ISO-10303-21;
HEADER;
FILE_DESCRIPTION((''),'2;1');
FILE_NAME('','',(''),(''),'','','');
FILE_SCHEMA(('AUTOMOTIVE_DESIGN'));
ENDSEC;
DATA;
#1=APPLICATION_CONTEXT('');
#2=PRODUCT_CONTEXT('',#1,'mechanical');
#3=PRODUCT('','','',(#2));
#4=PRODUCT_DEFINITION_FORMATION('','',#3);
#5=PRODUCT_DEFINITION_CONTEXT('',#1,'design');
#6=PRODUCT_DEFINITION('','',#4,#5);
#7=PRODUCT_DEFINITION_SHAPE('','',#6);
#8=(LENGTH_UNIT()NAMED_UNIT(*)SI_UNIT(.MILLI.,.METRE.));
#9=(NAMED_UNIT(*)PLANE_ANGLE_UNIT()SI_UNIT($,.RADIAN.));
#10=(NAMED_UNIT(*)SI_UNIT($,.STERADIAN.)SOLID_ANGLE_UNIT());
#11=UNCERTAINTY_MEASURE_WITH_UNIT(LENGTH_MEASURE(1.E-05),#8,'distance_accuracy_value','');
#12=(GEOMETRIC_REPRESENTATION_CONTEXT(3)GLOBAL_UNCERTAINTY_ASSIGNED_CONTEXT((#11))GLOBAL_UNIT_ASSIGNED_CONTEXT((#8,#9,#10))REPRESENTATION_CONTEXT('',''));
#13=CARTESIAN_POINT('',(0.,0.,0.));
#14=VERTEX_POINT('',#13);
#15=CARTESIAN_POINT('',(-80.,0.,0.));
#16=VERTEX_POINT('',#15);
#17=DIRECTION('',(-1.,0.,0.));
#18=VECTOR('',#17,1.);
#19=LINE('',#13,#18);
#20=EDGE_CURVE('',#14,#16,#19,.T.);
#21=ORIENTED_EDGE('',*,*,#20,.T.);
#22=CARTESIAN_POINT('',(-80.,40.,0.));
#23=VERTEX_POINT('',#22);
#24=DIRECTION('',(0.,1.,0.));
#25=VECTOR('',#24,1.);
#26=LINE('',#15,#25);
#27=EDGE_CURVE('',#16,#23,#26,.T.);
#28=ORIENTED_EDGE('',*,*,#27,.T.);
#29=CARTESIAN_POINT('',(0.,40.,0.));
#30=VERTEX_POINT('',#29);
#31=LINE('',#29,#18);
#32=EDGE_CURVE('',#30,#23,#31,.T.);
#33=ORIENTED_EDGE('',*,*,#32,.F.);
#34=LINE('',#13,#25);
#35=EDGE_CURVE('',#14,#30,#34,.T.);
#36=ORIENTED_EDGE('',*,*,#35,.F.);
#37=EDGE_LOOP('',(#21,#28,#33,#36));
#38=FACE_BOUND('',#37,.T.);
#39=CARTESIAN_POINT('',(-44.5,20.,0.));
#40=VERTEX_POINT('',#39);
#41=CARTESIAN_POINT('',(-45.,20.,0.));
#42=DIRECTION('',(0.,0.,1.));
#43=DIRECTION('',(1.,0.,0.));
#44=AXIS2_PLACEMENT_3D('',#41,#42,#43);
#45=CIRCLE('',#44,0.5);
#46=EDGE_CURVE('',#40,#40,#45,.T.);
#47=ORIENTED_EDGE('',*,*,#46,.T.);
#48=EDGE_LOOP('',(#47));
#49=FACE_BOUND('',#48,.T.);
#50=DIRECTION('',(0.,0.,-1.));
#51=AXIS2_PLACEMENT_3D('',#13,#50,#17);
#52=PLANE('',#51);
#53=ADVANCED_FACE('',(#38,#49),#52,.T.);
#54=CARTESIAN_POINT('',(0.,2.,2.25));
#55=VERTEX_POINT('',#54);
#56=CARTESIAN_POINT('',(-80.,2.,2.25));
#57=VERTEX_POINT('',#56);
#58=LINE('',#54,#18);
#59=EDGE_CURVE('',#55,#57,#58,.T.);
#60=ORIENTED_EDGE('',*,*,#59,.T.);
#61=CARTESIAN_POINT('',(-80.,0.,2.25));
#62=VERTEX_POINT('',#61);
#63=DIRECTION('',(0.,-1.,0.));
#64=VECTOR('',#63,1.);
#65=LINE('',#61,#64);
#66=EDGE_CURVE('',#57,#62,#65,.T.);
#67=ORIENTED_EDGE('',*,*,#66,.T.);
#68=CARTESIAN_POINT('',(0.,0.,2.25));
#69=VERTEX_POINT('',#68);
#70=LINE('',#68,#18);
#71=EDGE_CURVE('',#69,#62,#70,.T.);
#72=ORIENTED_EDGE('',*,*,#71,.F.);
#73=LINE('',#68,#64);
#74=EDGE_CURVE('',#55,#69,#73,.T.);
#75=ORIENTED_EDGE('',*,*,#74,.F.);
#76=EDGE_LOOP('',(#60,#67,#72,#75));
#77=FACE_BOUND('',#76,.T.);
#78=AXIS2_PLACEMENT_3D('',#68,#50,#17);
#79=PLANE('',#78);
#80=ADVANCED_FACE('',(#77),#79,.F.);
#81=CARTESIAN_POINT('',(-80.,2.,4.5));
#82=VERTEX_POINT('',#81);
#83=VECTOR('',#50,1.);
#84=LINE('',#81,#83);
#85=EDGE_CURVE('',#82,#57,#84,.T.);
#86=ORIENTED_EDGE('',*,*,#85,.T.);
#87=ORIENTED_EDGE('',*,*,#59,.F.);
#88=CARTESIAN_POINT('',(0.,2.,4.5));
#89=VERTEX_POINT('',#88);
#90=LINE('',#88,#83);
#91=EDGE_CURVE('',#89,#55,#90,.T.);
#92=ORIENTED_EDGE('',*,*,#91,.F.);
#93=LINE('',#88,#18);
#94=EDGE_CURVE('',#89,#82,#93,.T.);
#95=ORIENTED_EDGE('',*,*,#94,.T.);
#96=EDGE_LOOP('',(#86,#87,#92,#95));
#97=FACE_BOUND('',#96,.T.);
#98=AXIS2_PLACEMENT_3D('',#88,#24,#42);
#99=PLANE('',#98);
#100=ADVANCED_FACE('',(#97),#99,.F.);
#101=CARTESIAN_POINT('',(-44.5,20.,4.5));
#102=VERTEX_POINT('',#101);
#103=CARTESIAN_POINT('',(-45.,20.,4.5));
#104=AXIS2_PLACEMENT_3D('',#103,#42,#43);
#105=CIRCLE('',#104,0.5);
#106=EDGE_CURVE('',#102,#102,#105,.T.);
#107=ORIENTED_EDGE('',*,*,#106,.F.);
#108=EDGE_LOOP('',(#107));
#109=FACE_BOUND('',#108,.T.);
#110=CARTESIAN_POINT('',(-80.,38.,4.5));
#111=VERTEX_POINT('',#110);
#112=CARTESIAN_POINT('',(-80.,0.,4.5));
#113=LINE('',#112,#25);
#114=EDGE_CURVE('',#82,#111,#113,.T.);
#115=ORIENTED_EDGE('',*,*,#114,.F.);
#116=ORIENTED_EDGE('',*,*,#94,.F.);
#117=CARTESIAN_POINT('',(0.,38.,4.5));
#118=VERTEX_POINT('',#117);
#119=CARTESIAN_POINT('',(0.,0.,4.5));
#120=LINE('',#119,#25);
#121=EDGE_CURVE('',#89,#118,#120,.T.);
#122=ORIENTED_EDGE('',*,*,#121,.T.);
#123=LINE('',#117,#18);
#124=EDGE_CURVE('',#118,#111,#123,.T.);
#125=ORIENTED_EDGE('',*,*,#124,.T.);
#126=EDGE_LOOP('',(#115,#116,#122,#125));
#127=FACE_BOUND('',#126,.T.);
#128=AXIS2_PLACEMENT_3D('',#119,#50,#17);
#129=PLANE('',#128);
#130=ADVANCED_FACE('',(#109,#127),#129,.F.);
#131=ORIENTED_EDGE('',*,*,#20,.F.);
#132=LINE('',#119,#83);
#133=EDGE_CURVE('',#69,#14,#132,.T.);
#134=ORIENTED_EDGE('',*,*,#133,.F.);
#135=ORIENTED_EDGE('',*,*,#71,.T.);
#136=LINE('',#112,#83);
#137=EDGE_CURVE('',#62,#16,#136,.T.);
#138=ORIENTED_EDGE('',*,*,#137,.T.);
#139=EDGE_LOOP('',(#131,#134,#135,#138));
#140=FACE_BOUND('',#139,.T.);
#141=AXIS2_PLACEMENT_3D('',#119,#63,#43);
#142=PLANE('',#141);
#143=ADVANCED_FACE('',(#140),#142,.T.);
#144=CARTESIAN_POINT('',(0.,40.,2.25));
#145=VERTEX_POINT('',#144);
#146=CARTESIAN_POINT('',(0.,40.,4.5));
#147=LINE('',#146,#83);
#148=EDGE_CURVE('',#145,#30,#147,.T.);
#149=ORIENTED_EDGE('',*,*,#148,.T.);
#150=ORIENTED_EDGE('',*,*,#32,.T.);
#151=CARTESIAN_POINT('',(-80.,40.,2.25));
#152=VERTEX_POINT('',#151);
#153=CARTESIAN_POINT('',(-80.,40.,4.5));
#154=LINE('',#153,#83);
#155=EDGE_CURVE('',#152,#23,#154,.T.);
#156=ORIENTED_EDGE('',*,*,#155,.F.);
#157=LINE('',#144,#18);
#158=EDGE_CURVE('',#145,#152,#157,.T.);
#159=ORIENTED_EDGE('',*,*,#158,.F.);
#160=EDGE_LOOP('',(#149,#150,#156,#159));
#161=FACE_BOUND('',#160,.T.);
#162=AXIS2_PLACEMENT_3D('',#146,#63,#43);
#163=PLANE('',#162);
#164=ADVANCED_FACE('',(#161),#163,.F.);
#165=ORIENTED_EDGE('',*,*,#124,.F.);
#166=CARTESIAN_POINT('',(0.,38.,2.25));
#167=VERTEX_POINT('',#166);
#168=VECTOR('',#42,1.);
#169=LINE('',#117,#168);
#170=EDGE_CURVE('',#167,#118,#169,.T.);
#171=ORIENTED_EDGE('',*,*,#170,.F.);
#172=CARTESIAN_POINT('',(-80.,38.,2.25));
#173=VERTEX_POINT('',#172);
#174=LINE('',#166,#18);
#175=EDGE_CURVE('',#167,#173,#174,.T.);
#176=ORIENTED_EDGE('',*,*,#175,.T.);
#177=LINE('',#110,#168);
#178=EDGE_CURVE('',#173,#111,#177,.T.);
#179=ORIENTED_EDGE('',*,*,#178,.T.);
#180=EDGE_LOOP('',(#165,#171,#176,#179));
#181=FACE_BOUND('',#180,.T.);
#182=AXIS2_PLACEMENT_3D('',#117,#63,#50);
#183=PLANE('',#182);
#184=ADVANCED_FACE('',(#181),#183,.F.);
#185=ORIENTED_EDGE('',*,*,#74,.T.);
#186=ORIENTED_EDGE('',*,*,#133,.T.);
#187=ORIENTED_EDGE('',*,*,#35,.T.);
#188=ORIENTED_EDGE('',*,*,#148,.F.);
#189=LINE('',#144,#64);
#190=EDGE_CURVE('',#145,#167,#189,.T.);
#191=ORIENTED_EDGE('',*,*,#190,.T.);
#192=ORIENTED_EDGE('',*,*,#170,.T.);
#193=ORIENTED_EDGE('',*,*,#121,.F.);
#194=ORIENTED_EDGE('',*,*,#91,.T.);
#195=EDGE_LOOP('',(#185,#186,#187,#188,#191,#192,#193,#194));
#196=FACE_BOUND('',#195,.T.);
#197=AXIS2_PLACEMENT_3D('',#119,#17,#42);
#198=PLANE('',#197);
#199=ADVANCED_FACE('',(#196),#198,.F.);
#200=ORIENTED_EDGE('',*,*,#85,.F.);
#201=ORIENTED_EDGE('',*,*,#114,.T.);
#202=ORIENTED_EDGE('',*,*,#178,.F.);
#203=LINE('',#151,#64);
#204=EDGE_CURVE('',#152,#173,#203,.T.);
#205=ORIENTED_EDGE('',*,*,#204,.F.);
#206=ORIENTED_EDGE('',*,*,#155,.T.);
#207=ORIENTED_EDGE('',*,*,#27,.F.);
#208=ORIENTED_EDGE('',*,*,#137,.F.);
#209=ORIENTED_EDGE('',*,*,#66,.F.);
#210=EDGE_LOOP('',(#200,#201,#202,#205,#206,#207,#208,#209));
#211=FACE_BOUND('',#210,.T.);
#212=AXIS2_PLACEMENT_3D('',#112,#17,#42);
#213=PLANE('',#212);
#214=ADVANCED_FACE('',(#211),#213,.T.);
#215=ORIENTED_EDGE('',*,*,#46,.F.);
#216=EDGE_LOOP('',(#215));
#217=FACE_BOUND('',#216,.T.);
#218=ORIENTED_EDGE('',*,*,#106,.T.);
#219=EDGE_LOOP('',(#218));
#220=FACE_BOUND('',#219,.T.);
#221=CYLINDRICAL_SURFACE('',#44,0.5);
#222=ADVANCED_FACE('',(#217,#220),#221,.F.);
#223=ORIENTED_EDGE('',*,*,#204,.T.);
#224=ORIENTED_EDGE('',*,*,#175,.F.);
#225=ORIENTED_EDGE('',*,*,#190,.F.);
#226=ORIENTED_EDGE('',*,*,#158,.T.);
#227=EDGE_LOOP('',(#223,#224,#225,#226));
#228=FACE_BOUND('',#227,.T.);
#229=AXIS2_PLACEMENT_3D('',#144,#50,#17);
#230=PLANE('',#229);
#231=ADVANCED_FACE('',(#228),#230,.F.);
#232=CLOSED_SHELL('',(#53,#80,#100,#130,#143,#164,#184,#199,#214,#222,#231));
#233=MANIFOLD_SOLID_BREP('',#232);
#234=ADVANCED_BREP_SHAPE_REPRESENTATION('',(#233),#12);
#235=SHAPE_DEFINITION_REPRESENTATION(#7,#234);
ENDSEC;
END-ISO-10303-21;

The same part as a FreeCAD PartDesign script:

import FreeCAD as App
import Part
import Sketcher
Q = App.Units.Quantity

doc = App.newDocument("Part")
params = doc.addObject("Spreadsheet::Sheet", "Params")
for row, (alias, value) in enumerate([
    ("sketch1_width", "80 mm"),
    ("sketch1_height", "40 mm"),
    ("pad1_length", "4.5 mm"),
    ("sketch2_diameter", "1 mm"),
    ("sketch3_width", "2 mm"),
    ("sketch3_height", "2.25 mm"),
], start=1):
    params.set(f"A{row}", alias)
    params.set(f"B{row}", "=" + value)
    params.setAlias(f"B{row}", alias)

body = doc.addObject("PartDesign::Body", "Body")

# Sketch on XY plane
sketch1 = body.newObject("Sketcher::SketchObject", "Sketch")
sketch1.AttachmentSupport = (doc.getObject("XY_Plane"), [""])
sketch1.MapMode = "FlatFace"
sketch1.addGeometry(Part.LineSegment(App.Vector(-80, 0, 0), App.Vector(0, 0, 0)), False)
sketch1.addGeometry(Part.LineSegment(App.Vector(0, 0, 0), App.Vector(0, 40, 0)), False)
sketch1.addGeometry(Part.LineSegment(App.Vector(0, 40, 0), App.Vector(-80, 40, 0)), False)
sketch1.addGeometry(Part.LineSegment(App.Vector(-80, 40, 0), App.Vector(-80, 0, 0)), False)
sketch1.addConstraint(Sketcher.Constraint("Coincident", 0, 2, 1, 1))
sketch1.addConstraint(Sketcher.Constraint("Coincident", 1, 2, 2, 1))
sketch1.addConstraint(Sketcher.Constraint("Coincident", 2, 2, 3, 1))
sketch1.addConstraint(Sketcher.Constraint("Coincident", 3, 2, 0, 1))
sketch1.addConstraint(Sketcher.Constraint("Horizontal", 0))
sketch1.addConstraint(Sketcher.Constraint("Vertical", 1))
sketch1.addConstraint(Sketcher.Constraint("Horizontal", 2))
sketch1.addConstraint(Sketcher.Constraint("Vertical", 3))
sketch1.addConstraint(Sketcher.Constraint("Coincident", 0, 2, -1, 1))
sketch1.addConstraint(Sketcher.Constraint("DistanceX", 0, 1, 0, 2, Q("80 mm")))
sketch1.addConstraint(Sketcher.Constraint("DistanceY", 1, 1, 1, 2, Q("40 mm")))
sketch1.setExpression("Constraints[9]", "Params.sketch1_width")
sketch1.setExpression("Constraints[10]", "Params.sketch1_height")
pad1 = body.newObject("PartDesign::Pad", "Pad")
pad1.Profile = sketch1
pad1.setExpression("Length", "Params.pad1_length")

# Sketch on XY plane
sketch2 = body.newObject("Sketcher::SketchObject", "Sketch001")
sketch2.AttachmentSupport = (doc.getObject("XY_Plane"), [""])
sketch2.MapMode = "FlatFace"
sketch2.AttachmentOffset = App.Placement(App.Vector(0, 0, 4.5), App.Rotation())
sketch2.addGeometry(Part.Circle(App.Vector(-45, 20, 0), App.Vector(0, 0, 1), 0.5), False)
sketch2.addConstraint(Sketcher.Constraint("Diameter", 0, Q("1 mm")))
sketch2.addConstraint(Sketcher.Constraint("DistanceX", 0, 3, -1, 1, Q("45 mm")))
sketch2.addConstraint(Sketcher.Constraint("DistanceY", -1, 1, 0, 3, Q("20 mm")))
sketch2.setExpression("Constraints[0]", "Params.sketch2_diameter")
pocket1 = body.newObject("PartDesign::Pocket", "Pocket")
pocket1.Profile = sketch2
pocket1.Type = "ThroughAll"

# Sketch on YZ plane
sketch3 = body.newObject("Sketcher::SketchObject", "Sketch002")
sketch3.AttachmentSupport = (doc.getObject("YZ_Plane"), [""])
sketch3.MapMode = "FlatFace"
sketch3.AttachmentOffset = App.Placement(App.Vector(0, 0, -80), App.Rotation())
sketch3.addGeometry(Part.LineSegment(App.Vector(40, 4.5, 0), App.Vector(40, 2.2, 0)), False)
sketch3.addGeometry(Part.LineSegment(App.Vector(40, 2.2, 0), App.Vector(38, 2.2, 0)), False)
sketch3.addGeometry(Part.LineSegment(App.Vector(38, 2.2, 0), App.Vector(38, 4.5, 0)), False)
sketch3.addGeometry(Part.LineSegment(App.Vector(38, 4.5, 0), App.Vector(40, 4.5, 0)), False)
sketch3.addGeometry(Part.LineSegment(App.Vector(2, 4.5, 0), App.Vector(2, 2.2, 0)), False)
sketch3.addGeometry(Part.LineSegment(App.Vector(2, 2.2, 0), App.Vector(0, 2.2, 0)), False)
sketch3.addGeometry(Part.LineSegment(App.Vector(0, 2.2, 0), App.Vector(0, 4.5, 0)), False)
sketch3.addGeometry(Part.LineSegment(App.Vector(0, 4.5, 0), App.Vector(2, 4.5, 0)), False)
sketch3.addConstraint(Sketcher.Constraint("Coincident", 0, 2, 1, 1))
sketch3.addConstraint(Sketcher.Constraint("Coincident", 1, 2, 2, 1))
sketch3.addConstraint(Sketcher.Constraint("Coincident", 2, 2, 3, 1))
sketch3.addConstraint(Sketcher.Constraint("Coincident", 3, 2, 0, 1))
sketch3.addConstraint(Sketcher.Constraint("Coincident", 4, 2, 5, 1))
sketch3.addConstraint(Sketcher.Constraint("Coincident", 5, 2, 6, 1))
sketch3.addConstraint(Sketcher.Constraint("Coincident", 6, 2, 7, 1))
sketch3.addConstraint(Sketcher.Constraint("Coincident", 7, 2, 4, 1))
sketch3.addConstraint(Sketcher.Constraint("Vertical", 0))
sketch3.addConstraint(Sketcher.Constraint("Horizontal", 1))
sketch3.addConstraint(Sketcher.Constraint("Vertical", 2))
sketch3.addConstraint(Sketcher.Constraint("Horizontal", 3))
sketch3.addConstraint(Sketcher.Constraint("Vertical", 4))
sketch3.addConstraint(Sketcher.Constraint("Horizontal", 5))
sketch3.addConstraint(Sketcher.Constraint("Vertical", 6))
sketch3.addConstraint(Sketcher.Constraint("Horizontal", 7))
sketch3.addConstraint(Sketcher.Constraint("PointOnObject", 5, 2, -2))
sketch3.addConstraint(Sketcher.Constraint("Horizontal", 1, 2, 4, 2))
sketch3.addConstraint(Sketcher.Constraint("Horizontal", 3, 2, 6, 2))
sketch3.addConstraint(Sketcher.Constraint("Equal", 3, 5))
sketch3.addConstraint(Sketcher.Constraint("DistanceX", 1, 2, 1, 1, Q("2 mm")))
sketch3.addConstraint(Sketcher.Constraint("DistanceX", -1, 1, 0, 2, Q("40 mm")))
sketch3.addConstraint(Sketcher.Constraint("DistanceY", 0, 2, 0, 1, Q("2.25 mm")))
sketch3.addConstraint(Sketcher.Constraint("DistanceY", -1, 1, 2, 2, Q("4.5 mm")))
sketch3.setExpression("Constraints[20]", "Params.sketch3_width")
sketch3.setExpression("Constraints[22]", "Params.sketch3_height")
pocket2 = body.newObject("PartDesign::Pocket", "Pocket001")
pocket2.Profile = sketch3
pocket2.Type = "ThroughAll"
pocket2.Reversed = True

doc.recompute()
